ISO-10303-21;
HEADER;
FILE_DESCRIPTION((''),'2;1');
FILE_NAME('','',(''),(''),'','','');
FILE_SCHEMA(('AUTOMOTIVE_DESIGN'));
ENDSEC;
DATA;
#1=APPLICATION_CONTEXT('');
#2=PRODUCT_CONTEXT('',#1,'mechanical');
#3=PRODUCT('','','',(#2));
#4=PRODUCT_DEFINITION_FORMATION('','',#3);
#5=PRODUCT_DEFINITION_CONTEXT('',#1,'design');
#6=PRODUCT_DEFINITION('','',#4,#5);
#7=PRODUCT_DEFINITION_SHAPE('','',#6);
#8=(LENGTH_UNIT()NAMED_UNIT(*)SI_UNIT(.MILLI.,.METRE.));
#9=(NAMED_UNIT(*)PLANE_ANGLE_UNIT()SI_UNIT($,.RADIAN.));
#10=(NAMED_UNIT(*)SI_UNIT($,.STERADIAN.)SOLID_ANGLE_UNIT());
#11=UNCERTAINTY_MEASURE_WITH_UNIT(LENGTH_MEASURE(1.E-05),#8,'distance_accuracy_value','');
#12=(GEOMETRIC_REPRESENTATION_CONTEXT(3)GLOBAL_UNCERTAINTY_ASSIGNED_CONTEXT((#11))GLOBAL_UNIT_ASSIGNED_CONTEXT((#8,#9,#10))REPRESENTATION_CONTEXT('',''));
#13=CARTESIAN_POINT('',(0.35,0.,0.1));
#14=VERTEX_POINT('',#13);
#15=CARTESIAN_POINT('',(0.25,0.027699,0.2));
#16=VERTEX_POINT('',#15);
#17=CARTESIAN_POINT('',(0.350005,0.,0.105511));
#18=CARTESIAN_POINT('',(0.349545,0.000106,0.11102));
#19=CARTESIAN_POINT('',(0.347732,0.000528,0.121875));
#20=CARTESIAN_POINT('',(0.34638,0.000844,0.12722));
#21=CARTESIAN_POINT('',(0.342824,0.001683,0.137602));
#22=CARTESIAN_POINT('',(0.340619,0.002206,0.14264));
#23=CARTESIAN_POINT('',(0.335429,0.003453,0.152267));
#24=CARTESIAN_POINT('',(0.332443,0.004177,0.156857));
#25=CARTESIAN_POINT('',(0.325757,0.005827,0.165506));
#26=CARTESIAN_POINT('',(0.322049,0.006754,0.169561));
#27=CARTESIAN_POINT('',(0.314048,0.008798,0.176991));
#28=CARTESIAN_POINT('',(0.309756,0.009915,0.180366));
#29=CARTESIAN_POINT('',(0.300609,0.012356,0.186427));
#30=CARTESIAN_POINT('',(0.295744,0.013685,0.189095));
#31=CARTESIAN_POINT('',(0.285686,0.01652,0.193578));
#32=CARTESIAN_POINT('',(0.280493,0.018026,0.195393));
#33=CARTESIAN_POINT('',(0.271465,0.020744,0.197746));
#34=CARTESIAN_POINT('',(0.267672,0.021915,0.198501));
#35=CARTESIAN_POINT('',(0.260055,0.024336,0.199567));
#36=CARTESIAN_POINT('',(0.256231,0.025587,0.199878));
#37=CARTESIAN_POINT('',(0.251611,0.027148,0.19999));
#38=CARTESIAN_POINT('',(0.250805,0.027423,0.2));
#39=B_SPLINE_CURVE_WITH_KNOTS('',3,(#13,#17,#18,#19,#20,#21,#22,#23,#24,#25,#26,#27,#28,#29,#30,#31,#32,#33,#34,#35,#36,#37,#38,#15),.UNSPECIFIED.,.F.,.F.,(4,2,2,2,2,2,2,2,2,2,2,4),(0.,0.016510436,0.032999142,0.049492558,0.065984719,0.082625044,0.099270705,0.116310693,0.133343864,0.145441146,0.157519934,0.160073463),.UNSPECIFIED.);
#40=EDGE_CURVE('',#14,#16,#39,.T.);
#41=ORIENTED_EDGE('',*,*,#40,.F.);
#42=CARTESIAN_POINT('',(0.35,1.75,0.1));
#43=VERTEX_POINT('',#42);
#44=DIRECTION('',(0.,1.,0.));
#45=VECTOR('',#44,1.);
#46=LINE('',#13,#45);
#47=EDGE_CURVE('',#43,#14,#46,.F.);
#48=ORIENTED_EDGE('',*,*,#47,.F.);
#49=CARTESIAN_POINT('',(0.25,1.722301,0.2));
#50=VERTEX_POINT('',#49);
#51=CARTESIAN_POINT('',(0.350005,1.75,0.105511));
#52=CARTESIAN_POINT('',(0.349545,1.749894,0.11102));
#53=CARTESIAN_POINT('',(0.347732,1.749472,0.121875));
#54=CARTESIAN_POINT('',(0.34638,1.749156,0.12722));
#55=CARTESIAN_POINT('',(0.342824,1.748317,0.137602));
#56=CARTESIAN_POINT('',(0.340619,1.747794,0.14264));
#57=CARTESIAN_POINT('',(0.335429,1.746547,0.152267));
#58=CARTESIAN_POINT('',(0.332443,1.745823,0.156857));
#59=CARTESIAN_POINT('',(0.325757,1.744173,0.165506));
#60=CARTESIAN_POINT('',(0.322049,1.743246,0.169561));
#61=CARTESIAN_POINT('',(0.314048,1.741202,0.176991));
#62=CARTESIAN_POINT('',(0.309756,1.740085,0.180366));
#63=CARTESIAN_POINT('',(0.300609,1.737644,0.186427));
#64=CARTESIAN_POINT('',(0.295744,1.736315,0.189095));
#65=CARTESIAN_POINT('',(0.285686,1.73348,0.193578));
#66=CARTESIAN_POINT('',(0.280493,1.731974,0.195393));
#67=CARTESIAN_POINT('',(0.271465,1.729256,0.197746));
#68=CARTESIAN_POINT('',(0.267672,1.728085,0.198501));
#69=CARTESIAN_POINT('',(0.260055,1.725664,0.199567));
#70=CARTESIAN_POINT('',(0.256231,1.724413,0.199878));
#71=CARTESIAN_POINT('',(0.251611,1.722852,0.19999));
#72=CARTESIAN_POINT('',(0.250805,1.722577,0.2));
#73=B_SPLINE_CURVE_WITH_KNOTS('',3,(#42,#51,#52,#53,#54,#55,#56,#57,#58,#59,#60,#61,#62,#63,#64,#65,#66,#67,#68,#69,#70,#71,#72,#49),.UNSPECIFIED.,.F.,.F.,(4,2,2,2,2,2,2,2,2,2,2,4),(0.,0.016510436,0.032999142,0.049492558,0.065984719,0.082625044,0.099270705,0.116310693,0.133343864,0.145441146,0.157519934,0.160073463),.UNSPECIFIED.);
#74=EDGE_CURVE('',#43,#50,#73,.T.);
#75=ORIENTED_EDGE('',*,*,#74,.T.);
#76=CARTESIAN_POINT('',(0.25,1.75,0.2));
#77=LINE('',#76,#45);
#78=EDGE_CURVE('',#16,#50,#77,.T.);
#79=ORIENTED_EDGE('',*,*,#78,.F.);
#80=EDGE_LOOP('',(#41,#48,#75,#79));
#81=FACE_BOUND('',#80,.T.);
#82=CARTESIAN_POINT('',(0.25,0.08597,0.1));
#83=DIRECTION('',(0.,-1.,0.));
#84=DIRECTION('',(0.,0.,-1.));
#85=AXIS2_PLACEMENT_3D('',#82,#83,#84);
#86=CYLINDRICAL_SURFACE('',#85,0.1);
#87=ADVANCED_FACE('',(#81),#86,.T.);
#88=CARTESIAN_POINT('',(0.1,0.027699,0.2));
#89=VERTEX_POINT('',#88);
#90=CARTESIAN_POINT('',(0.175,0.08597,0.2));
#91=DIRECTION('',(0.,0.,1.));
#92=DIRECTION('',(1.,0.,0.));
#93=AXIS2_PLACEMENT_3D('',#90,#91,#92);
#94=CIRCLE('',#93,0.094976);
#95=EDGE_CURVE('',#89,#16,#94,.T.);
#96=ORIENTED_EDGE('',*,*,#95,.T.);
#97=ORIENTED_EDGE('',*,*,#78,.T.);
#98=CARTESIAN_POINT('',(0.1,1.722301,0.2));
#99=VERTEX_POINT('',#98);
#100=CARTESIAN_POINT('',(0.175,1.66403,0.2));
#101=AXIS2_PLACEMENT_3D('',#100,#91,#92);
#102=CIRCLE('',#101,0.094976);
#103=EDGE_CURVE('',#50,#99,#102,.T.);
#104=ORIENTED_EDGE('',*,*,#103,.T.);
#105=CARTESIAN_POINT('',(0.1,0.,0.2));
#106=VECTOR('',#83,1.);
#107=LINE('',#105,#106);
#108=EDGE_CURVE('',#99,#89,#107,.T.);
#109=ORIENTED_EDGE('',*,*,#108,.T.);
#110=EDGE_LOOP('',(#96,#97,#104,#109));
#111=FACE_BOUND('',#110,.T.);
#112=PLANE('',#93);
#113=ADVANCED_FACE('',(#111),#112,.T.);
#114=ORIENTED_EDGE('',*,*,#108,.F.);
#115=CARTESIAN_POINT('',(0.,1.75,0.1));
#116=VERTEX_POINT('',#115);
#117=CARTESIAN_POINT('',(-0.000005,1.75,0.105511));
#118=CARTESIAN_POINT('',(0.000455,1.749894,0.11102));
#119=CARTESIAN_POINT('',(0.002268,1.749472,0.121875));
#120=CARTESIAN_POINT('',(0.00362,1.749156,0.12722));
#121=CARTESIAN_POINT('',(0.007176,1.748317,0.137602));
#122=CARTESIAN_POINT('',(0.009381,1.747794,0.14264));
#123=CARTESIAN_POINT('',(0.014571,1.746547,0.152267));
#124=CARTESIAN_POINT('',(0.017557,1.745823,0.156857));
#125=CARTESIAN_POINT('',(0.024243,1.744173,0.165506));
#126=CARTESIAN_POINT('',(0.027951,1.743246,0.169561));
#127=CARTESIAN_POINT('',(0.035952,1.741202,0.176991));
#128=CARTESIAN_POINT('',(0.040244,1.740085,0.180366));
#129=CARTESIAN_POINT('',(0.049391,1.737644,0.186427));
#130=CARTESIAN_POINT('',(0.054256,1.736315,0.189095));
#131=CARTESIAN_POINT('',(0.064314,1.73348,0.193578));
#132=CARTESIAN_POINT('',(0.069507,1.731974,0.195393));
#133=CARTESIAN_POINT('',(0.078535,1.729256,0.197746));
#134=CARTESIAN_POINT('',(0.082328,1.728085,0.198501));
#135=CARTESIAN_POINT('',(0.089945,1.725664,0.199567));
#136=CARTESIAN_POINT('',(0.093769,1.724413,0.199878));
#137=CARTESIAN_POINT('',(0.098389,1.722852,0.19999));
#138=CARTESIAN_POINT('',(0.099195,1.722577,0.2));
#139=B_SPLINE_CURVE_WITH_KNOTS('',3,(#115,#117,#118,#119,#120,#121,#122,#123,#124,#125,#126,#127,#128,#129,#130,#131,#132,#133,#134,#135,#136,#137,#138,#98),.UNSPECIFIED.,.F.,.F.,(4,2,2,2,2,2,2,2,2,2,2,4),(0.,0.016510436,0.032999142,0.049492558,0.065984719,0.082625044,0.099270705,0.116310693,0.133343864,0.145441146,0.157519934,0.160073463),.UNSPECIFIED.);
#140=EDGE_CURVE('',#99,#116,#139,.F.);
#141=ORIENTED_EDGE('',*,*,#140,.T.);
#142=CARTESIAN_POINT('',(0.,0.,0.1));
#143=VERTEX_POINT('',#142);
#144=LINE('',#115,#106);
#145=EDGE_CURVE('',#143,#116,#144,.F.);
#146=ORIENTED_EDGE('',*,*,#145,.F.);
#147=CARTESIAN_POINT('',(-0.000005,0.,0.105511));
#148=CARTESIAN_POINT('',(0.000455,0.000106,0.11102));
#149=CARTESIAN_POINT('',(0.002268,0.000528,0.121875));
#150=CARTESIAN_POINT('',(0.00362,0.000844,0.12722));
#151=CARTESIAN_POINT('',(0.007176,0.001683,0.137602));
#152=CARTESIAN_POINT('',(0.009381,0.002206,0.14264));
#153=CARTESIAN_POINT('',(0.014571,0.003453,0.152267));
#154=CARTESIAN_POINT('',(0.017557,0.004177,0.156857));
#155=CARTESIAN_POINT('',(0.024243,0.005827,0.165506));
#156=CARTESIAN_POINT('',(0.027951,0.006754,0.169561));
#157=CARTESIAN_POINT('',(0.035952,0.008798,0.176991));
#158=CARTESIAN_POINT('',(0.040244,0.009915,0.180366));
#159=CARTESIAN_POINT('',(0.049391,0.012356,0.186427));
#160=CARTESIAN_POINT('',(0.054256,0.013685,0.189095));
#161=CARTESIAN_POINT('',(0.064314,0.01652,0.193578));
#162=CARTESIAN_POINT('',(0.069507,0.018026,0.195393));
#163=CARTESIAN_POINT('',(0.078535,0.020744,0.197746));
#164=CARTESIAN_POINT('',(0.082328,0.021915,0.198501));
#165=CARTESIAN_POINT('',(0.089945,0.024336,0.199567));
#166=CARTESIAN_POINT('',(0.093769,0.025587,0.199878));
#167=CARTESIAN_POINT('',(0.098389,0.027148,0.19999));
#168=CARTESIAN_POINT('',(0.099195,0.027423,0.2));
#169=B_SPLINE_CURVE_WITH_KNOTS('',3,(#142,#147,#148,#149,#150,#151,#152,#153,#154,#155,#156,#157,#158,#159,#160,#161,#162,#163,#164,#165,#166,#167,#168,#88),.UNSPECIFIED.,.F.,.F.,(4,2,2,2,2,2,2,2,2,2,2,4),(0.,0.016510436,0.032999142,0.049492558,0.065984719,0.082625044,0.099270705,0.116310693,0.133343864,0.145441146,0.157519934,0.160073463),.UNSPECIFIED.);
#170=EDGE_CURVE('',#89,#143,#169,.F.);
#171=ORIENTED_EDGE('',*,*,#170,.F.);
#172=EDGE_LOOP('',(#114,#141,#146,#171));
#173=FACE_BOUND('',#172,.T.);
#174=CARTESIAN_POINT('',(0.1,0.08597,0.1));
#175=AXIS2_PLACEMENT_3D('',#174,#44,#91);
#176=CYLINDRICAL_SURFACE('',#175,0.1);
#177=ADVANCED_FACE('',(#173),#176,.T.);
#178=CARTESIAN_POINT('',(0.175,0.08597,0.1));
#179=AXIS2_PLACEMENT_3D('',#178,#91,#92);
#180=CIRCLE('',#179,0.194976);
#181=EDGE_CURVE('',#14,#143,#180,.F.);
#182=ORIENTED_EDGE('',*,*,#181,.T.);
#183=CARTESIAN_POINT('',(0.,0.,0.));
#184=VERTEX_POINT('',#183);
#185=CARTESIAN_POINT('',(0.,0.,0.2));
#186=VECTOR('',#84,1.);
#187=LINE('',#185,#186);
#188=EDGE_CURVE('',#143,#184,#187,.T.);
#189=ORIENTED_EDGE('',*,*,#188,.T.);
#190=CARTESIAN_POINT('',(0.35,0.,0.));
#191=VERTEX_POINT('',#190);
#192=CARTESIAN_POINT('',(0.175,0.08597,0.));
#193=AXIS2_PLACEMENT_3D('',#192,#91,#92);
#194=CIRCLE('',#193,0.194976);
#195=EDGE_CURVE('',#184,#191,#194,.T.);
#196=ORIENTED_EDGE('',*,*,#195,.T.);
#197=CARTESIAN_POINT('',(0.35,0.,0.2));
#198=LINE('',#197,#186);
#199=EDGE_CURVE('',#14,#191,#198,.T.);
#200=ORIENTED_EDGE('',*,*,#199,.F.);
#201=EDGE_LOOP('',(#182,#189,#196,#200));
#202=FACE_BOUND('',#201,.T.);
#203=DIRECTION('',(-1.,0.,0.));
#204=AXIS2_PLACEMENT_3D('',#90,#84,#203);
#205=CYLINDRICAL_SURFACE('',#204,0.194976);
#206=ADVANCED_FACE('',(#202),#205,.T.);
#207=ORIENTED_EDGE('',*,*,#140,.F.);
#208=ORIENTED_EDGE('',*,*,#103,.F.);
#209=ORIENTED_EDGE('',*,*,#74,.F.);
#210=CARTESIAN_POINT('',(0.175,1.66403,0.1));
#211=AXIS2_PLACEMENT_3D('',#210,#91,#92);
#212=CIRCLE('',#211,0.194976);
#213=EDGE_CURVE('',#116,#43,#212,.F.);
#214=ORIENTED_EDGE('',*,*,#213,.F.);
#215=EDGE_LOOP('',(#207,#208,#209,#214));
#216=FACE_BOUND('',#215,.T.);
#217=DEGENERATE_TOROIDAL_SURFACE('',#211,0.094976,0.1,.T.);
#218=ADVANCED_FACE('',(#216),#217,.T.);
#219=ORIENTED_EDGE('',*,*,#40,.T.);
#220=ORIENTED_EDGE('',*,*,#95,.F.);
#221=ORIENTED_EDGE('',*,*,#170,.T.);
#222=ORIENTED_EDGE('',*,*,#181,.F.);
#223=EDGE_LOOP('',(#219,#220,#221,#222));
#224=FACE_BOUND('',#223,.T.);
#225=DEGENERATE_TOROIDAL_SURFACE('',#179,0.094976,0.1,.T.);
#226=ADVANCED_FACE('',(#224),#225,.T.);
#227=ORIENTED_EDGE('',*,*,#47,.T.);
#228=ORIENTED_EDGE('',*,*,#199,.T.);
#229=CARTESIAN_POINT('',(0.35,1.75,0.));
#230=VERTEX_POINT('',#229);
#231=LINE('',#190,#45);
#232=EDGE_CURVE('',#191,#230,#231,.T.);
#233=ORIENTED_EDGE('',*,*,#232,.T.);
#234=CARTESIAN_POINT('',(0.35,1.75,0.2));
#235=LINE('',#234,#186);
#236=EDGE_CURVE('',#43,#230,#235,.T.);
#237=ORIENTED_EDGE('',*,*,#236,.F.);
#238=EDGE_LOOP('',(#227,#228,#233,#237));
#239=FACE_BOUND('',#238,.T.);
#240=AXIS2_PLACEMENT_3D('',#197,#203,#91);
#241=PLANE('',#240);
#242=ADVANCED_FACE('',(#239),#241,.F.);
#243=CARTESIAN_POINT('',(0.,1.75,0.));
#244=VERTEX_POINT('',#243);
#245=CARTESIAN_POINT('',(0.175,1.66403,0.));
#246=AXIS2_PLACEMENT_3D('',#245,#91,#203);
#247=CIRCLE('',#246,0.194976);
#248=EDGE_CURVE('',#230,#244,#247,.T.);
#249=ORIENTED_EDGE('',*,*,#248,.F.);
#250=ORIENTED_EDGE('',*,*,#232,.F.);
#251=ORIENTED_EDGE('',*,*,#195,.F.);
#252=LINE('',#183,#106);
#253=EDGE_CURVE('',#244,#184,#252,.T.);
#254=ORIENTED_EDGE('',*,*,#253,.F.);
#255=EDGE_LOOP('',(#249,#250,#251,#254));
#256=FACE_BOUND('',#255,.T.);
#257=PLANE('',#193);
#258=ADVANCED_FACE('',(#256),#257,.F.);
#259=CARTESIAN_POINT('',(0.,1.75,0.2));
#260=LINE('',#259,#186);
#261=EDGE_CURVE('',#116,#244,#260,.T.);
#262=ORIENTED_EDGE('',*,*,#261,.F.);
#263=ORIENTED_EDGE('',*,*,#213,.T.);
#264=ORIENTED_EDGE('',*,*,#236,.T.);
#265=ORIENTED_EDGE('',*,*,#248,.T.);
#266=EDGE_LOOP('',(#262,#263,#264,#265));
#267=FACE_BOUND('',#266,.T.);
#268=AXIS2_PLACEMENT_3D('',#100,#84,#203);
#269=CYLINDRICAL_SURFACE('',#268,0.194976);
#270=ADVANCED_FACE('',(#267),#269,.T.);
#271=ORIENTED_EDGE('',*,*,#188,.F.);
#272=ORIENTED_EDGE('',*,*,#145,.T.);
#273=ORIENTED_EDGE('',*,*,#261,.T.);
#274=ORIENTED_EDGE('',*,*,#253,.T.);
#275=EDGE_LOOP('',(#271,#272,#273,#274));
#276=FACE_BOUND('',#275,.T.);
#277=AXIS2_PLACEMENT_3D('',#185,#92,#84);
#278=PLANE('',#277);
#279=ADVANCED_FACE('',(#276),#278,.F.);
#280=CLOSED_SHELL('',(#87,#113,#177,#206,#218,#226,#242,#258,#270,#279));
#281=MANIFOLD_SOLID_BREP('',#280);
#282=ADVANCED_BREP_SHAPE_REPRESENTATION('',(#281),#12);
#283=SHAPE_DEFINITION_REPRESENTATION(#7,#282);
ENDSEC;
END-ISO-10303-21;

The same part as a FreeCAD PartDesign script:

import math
import FreeCAD as App
import Part
import Sketcher
from FreeCAD import Vector


def edges_at(feature, points):
    """Names of the edges that pass closest to the given points."""
    edges = feature.Shape.Edges
    near = lambda p: min(range(len(edges)), key=lambda i: edges[i].distToShape(Part.Vertex(*p))[0])
    return sorted({f"Edge{near(p) + 1}" for p in points})

doc = App.newDocument("Part")
params = doc.addObject("Spreadsheet::Sheet", "Params")
for row, (alias, value) in enumerate([
    ("sketch1_height", "1.75 mm"),
    ("pad1_length", "0.2 mm"),
    ("fillet_radius", "0.1 mm"),
], start=1):
    params.set(f"A{row}", alias)
    params.set(f"B{row}", "=" + value)
    params.setAlias(f"B{row}", alias)

body = doc.addObject("PartDesign::Body", "Body")

sketch1 = body.newObject("Sketcher::SketchObject", "Sketch")
sketch1.AttachmentSupport = (doc.getObject("XY_Plane"), [""])
sketch1.MapMode = "FlatFace"
sketch1.addGeometry(Part.LineSegment(Vector(0, 1.75, 0), Vector(0, 0, 0)), False)
sketch1.addGeometry(Part.ArcOfCircle(Part.Circle(Vector(0.17, 0.09, 0), Vector(0, 0, 1), 0.19), math.radians(-154), math.radians(-26)), False)
sketch1.addGeometry(Part.LineSegment(Vector(0.35, 0, 0), Vector(0.35, 1.75, 0)), False)
sketch1.addGeometry(Part.ArcOfCircle(Part.Circle(Vector(0.17, 1.66, 0), Vector(0, 0, 1), 0.19), math.radians(26), math.radians(154)), False)
sketch1.addConstraint(Sketcher.Constraint("Coincident", 0, 2, 1, 1))
sketch1.addConstraint(Sketcher.Constraint("Coincident", 1, 2, 2, 1))
sketch1.addConstraint(Sketcher.Constraint("Coincident", 2, 2, 3, 1))
sketch1.addConstraint(Sketcher.Constraint("Coincident", 3, 2, 0, 1))
sketch1.addConstraint(Sketcher.Constraint("Vertical", 0))
sketch1.addConstraint(Sketcher.Constraint("Vertical", 2))
sketch1.addConstraint(Sketcher.Constraint("Coincident", 0, 2, -1, 1))
sketch1.addConstraint(Sketcher.Constraint("Equal", 1, 3))
sketch1.addConstraint(Sketcher.Constraint("PointOnObject", 1, 2, -1))
sketch1.addConstraint(Sketcher.Constraint("Horizontal", 2, 2, 3, 2))
sketch1.addConstraint(Sketcher.Constraint("DistanceY", 0, 2, 0, 1, 1.75))
sketch1.addConstraint(Sketcher.Constraint("DistanceX", -1, 1, 1, 2, 0.35))
sketch1.addConstraint(Sketcher.Constraint("Radius", 1, 0.194976))
sketch1.setExpression("Constraints[10]", "Params.sketch1_height")
pad1 = body.newObject("PartDesign::Pad", "Pad")
pad1.Profile = sketch1
pad1.setExpression("Length", "Params.pad1_length")
doc.recompute()

fillet = body.newObject("PartDesign::Fillet", "Fillet")
fillet.Base = (pad1, edges_at(pad1, [
    (0.175, 1.859, 0.2),
    (0, 0.875, 0.2),
    (0.175, -0.109, 0.2),
    (0.35, 0.875, 0.2),
]))
fillet.setExpression("Radius", "Params.fillet_radius")

doc.recompute()
